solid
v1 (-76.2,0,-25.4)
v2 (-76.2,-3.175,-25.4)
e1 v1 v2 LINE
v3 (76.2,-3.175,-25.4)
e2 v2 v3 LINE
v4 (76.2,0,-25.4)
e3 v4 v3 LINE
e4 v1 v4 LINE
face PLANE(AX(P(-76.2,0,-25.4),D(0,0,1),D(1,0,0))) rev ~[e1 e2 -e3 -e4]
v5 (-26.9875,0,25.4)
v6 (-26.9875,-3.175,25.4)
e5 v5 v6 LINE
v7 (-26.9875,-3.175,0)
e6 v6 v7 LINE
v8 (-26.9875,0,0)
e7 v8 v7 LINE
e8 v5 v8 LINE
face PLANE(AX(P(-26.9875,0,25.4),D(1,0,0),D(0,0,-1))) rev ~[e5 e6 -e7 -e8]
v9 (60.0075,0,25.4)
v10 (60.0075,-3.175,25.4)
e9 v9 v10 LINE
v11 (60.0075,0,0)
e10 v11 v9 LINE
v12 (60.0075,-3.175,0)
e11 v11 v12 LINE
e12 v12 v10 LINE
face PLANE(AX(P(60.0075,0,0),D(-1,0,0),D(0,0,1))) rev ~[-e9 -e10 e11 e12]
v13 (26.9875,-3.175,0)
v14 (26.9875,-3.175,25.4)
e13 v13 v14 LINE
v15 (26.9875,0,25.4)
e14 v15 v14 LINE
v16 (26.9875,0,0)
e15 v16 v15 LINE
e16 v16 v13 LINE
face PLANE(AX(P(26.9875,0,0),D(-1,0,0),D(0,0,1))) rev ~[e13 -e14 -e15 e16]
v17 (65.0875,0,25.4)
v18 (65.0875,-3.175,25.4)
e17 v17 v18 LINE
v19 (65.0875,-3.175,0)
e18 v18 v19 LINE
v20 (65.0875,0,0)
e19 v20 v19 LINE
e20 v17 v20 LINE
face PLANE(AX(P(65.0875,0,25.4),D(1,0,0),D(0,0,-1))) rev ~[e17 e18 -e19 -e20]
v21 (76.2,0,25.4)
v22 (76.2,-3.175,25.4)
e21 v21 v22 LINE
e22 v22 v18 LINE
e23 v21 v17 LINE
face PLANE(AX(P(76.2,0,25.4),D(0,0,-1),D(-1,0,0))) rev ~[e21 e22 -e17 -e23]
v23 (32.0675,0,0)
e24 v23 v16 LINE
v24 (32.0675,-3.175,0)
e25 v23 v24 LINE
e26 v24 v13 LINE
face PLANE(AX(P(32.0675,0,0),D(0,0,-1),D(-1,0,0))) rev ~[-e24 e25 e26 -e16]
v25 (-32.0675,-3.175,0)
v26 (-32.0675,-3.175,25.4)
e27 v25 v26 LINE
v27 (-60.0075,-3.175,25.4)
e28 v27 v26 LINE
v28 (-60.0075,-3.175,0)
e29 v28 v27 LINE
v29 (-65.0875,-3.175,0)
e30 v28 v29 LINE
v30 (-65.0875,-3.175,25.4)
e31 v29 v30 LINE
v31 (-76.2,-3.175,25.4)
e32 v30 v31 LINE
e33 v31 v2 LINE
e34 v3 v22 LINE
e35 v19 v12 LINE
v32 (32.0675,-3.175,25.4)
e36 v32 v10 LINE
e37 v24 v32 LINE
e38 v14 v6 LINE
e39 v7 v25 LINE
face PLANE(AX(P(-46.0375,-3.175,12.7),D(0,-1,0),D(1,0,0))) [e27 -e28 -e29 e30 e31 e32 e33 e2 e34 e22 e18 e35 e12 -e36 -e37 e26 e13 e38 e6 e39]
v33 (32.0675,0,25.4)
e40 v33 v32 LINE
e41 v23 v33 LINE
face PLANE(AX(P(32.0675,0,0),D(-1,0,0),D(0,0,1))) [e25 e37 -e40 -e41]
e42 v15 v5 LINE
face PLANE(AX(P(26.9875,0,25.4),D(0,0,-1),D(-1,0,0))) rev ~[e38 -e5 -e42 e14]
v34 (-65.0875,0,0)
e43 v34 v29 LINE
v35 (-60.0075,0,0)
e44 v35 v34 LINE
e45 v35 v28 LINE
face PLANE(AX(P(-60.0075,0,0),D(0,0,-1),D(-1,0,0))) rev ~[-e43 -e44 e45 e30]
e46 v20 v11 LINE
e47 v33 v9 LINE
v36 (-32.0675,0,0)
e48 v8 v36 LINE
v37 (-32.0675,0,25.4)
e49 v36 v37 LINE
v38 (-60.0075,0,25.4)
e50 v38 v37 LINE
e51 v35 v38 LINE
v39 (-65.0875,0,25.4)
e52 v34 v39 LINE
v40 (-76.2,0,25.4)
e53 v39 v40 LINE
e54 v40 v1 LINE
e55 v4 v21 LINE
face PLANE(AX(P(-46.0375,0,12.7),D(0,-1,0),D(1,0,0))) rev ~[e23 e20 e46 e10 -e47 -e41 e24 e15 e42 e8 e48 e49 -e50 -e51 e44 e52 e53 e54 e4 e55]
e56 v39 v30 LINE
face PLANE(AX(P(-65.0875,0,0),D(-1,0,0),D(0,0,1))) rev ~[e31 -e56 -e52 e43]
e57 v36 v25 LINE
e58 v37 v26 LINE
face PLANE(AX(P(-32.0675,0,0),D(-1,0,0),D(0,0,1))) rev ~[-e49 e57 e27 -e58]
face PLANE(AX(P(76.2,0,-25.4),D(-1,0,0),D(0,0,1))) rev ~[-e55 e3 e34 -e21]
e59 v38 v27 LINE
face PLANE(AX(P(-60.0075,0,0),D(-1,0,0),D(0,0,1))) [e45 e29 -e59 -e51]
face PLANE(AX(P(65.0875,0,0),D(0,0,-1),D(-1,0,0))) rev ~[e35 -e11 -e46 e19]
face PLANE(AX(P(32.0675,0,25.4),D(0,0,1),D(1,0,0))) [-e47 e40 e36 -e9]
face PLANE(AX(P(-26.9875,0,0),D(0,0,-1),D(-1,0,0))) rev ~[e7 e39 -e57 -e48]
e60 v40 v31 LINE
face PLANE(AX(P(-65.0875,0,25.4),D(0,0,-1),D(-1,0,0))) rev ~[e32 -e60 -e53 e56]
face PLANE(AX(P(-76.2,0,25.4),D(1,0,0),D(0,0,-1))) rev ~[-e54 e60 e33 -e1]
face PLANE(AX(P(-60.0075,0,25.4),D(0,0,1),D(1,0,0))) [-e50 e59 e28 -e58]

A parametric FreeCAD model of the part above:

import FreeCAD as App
import Part
import Sketcher
Q = App.Units.Quantity


def add_polygon(sketch, points):
    """Adds a closed chain of lines whose ends are joined by coincident constraints."""
    first, n = sketch.GeometryCount, len(points)
    for a, b in zip(points, points[1:] + points[:1]):
        sketch.addGeometry(Part.LineSegment(App.Vector(*a, 0), App.Vector(*b, 0)), False)
    for i in range(n):
        sketch.addConstraint(Sketcher.Constraint("Coincident", first + i, 2, first + (i + 1) % n, 1))

doc = App.newDocument("Part")
body = doc.addObject("PartDesign::Body", "Body")

# Sketch on XZ plane
sketch1 = body.newObject("Sketcher::SketchObject", "Sketch")
sketch1.AttachmentSupport = (doc.getObject("XZ_Plane"), [""])
sketch1.MapMode = "FlatFace"
add_polygon(sketch1, [(-60.0075, 25.4), (-60.0075, 0), (-65.0875, 0), (-65.0875, 25.4), (-76.2, 25.4), (-76.2, -25.4), (76.2, -25.4), (76.2, 25.4), (65.0875, 25.4), (65.0875, 0), (60.0075, 0), (60.0075, 25.4), (32.0675, 25.4), (32.0675, 0), (26.9875, 0), (26.9875, 25.4), (-26.9875, 25.4), (-26.9875, 0), (-32.0675, 0), (-32.0675, 25.4)])  # lines 0-19
sketch1.addConstraint([
    Sketcher.Constraint("Vertical", 0),
    Sketcher.Constraint("Horizontal", 1),
    Sketcher.Constraint("Vertical", 2),
    Sketcher.Constraint("Horizontal", 3),
    Sketcher.Constraint("Vertical", 4),
    Sketcher.Constraint("Horizontal", 5),
    Sketcher.Constraint("Vertical", 6),
    Sketcher.Constraint("Horizontal", 7),
    Sketcher.Constraint("Vertical", 8),
    Sketcher.Constraint("Horizontal", 9),
    Sketcher.Constraint("Vertical", 10),
    Sketcher.Constraint("Horizontal", 11),
    Sketcher.Constraint("Vertical", 12),
    Sketcher.Constraint("Horizontal", 13),
    Sketcher.Constraint("Vertical", 14),
    Sketcher.Constraint("Horizontal", 15),
    Sketcher.Constraint("Vertical", 16),
    Sketcher.Constraint("Horizontal", 17),
    Sketcher.Constraint("Vertical", 18),
    Sketcher.Constraint("Horizontal", 19),
    Sketcher.Constraint("Symmetric", 3, 2, 5, 2, -1, 1),
    Sketcher.Constraint("Symmetric", 1, 2, 8, 2, -1, 1),
    Sketcher.Constraint("Symmetric", 13, 2, 16, 2, -1, 1),
    Sketcher.Constraint("Symmetric", 0, 2, 9, 2, -2),
    Sketcher.Constraint("Symmetric", 12, 2, 17, 2, -2),
    Sketcher.Constraint("Horizontal", 3, 2, 6, 2),
    Sketcher.Constraint("Horizontal", 7, 2, 10, 2),
    Sketcher.Constraint("Horizontal", 11, 2, 14, 2),
    Sketcher.Constraint("Horizontal", 15, 2, 18, 2),
    Sketcher.Constraint("Equal", 9, 13),
    Sketcher.Constraint("DistanceX", 5, 1, 5, 2, Q("6 in")),
    Sketcher.Constraint("DistanceY", 0, 2, 0, 1, Q("1 in")),
    Sketcher.Constraint("DistanceX", 1, 2, 1, 1, Q("0.2 in")),
    Sketcher.Constraint("DistanceX", 11, 2, 11, 1, Q("1.1 in")),
    Sketcher.Constraint("DistanceX", 3, 2, 3, 1, Q("0.4375 in")),
])
pad1 = body.newObject("PartDesign::Pad", "Pad")
pad1.Profile = sketch1
pad1.Length = Q("0.125 in")

doc.recompute()
